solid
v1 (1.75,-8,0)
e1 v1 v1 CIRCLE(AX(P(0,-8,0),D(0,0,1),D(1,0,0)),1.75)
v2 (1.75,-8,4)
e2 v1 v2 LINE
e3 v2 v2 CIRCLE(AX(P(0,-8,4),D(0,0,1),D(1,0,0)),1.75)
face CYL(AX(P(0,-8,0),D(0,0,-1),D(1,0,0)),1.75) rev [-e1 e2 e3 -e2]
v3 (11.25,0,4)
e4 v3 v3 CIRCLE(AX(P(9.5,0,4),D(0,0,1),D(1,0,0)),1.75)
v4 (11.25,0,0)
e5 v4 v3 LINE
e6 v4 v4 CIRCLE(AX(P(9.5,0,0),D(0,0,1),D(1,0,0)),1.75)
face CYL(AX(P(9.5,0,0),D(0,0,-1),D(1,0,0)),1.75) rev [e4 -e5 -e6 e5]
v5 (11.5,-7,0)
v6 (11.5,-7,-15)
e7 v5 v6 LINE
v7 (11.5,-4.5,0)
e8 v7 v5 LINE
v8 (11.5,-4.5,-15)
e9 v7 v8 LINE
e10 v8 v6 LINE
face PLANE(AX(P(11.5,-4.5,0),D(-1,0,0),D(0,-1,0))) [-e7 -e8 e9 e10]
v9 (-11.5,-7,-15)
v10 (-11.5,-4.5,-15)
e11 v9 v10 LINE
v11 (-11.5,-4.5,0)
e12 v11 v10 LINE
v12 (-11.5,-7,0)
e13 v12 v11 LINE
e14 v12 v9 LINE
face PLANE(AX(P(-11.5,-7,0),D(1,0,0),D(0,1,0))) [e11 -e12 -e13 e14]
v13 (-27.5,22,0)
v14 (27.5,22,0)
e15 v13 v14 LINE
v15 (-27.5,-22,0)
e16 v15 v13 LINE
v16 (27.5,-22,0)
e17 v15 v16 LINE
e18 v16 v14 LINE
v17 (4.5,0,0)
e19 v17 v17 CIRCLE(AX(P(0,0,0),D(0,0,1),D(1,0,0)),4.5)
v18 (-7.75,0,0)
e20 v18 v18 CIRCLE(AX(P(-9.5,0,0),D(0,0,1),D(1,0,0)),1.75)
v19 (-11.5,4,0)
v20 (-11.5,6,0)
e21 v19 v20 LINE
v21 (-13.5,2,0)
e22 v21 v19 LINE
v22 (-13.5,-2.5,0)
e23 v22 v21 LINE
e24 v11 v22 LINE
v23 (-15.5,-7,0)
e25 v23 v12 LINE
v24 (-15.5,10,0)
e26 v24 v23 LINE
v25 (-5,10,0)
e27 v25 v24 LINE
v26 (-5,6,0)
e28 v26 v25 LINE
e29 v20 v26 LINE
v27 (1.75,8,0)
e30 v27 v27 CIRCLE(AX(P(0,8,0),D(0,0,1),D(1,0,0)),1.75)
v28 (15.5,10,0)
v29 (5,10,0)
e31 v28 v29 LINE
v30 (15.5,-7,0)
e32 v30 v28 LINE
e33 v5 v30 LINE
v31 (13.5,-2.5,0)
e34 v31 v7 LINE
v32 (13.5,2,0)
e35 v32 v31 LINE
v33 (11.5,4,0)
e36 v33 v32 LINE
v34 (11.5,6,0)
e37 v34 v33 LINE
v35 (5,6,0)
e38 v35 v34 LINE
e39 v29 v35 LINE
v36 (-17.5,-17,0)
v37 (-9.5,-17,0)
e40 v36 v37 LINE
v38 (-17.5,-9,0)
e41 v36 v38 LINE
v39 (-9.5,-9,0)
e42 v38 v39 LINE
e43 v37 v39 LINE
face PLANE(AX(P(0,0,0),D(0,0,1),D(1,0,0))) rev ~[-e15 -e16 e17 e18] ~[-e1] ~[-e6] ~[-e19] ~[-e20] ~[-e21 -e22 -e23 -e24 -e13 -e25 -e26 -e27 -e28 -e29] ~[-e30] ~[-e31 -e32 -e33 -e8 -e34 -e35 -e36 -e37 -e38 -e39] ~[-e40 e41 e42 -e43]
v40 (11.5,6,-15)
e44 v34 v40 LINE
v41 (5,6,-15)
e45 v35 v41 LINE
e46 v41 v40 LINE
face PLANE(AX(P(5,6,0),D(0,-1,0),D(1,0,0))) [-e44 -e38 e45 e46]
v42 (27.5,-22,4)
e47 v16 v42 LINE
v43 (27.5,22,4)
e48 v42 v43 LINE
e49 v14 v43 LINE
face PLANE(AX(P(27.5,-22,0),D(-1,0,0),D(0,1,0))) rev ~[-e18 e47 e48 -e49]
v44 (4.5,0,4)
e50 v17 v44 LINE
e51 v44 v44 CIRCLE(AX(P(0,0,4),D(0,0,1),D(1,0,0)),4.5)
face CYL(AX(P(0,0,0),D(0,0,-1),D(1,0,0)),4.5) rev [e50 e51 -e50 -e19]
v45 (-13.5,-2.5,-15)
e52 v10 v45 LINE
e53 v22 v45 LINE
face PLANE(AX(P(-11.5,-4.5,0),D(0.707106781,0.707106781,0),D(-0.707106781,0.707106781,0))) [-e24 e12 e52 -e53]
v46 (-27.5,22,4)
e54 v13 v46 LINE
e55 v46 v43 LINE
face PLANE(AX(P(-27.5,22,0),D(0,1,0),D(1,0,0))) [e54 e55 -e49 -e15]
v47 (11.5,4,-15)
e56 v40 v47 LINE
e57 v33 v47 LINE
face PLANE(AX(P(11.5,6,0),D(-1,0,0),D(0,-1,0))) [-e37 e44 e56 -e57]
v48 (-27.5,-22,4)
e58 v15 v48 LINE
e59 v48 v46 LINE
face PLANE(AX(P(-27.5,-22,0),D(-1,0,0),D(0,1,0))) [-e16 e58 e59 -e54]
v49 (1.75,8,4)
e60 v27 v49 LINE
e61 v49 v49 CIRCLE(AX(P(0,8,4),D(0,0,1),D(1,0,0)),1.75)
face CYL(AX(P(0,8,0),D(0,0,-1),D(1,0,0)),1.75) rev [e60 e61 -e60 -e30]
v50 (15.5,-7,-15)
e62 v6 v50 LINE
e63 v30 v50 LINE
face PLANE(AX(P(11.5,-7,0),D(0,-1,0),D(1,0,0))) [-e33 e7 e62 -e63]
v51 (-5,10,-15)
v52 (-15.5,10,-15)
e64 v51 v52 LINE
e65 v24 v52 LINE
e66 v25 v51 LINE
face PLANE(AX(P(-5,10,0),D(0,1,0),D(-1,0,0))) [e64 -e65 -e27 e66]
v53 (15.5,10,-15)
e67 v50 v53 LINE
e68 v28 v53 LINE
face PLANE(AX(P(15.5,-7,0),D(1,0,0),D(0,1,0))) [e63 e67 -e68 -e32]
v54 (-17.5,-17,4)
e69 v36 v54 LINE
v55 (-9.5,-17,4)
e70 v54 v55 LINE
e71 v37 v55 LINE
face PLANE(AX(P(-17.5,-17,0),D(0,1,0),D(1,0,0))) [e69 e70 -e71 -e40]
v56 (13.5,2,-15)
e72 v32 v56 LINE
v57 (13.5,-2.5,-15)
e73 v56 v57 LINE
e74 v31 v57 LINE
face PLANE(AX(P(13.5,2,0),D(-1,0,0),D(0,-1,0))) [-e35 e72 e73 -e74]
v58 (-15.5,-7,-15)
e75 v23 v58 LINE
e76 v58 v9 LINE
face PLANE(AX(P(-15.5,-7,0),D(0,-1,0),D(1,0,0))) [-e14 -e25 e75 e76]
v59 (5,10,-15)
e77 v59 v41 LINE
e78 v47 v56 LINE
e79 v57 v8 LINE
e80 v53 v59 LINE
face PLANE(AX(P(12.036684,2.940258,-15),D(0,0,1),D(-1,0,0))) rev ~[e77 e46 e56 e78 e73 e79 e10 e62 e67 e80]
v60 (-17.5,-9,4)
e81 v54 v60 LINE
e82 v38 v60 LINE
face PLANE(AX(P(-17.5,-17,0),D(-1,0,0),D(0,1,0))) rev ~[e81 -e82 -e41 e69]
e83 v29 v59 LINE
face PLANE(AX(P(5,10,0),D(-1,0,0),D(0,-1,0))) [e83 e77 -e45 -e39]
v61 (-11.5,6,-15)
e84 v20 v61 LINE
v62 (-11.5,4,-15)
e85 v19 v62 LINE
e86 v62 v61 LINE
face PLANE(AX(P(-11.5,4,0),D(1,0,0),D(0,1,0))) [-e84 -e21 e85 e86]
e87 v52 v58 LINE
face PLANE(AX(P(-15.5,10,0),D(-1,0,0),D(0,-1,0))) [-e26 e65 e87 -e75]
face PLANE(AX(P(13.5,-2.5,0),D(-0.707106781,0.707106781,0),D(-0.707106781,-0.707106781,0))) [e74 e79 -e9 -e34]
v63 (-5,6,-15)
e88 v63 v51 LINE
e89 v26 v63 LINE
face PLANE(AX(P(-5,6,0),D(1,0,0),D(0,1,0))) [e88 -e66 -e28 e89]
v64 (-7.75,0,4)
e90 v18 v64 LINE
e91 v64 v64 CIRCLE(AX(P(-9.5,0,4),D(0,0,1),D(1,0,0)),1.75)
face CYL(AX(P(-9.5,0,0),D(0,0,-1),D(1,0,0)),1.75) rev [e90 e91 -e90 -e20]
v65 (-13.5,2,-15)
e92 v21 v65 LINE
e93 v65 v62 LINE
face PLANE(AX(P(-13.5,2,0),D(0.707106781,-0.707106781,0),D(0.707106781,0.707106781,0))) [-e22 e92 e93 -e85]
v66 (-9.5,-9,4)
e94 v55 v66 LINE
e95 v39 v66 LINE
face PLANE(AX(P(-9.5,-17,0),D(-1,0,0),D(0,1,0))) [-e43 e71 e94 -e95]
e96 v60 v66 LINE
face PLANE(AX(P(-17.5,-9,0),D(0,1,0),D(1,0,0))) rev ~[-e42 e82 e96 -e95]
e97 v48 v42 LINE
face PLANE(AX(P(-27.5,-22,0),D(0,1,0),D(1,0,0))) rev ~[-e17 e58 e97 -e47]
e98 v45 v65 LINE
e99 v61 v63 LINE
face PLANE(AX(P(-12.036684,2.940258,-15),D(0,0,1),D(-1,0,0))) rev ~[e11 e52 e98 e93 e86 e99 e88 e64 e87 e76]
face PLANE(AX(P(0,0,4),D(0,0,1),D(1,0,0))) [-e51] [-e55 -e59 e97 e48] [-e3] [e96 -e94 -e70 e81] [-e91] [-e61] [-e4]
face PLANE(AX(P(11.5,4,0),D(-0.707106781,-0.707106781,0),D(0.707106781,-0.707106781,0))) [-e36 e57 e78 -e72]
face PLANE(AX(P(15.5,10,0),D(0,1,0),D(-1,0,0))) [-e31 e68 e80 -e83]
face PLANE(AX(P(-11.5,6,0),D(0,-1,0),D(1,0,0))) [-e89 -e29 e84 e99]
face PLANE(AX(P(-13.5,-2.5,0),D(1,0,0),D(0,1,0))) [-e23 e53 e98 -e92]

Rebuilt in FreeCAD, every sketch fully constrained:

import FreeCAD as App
import Part
import Sketcher
from FreeCAD import Vector
Q = App.Units.Quantity


def add_polygon(sketch, points):
    """Adds a closed chain of lines whose ends are joined by coincident constraints."""
    first, n = sketch.GeometryCount, len(points)
    for a, b in zip(points, points[1:] + points[:1]):
        sketch.addGeometry(Part.LineSegment(App.Vector(*a, 0), App.Vector(*b, 0)), False)
    for i in range(n):
        sketch.addConstraint(Sketcher.Constraint("Coincident", first + i, 2, first + (i + 1) % n, 1))

doc = App.newDocument("Part")
params = doc.addObject("Spreadsheet::Sheet", "Params")
for row, (alias, value) in enumerate([
    ("sketch1_diameter", "9 mm"),
    ("sketch1_diameter2", "3.5 mm"),
    ("sketch1_width", "55 mm"),
    ("sketch1_width2", "8 mm"),
    ("sketch1_height", "44 mm"),
    ("pad1_length", "4 mm"),
    ("sketch2_width", "4 mm"),
    ("sketch2_height", "17 mm"),
    ("sketch2_height2", "2 mm"),
    ("sketch2_width2", "10.5 mm"),
    ("sketch2_height3", "4.5 mm"),
    ("pad2_length", "15 mm"),
], start=1):
    params.set(f"A{row}", alias)
    params.set(f"B{row}", "=" + value)
    params.setAlias(f"B{row}", alias)

body = doc.addObject("PartDesign::Body", "Body")

sketch1 = doc.addObject("Sketcher::SketchObject", "Sketch")
body.addObject(sketch1)
sketch1.AttachmentSupport = (doc.XY_Plane, [""])
sketch1.MapMode = "FlatFace"
add_polygon(sketch1, [(-27.5, 22), (-27.5, -22), (27.5, -22), (27.5, 22)])
add_polygon(sketch1, [(-9.5, -17), (-17.5, -17), (-17.5, -9), (-9.5, -9)])
sketch1.addGeometry(Part.Circle(Vector(0, -8, 0), Vector(0, 0, 1), 1.8), False)
sketch1.addGeometry(Part.Circle(Vector(-9.5, 0, 0), Vector(0, 0, 1), 1.8), False)
sketch1.addGeometry(Part.Circle(Vector(0, 0, 0), Vector(0, 0, 1), 4.5), False)
sketch1.addGeometry(Part.Circle(Vector(9.5, 0, 0), Vector(0, 0, 1), 1.8), False)
sketch1.addGeometry(Part.Circle(Vector(0, 8, 0), Vector(0, 0, 1), 1.8), False)
sketch1.addConstraint([
    Sketcher.Constraint("Vertical", 0),
    Sketcher.Constraint("Horizontal", 1),
    Sketcher.Constraint("Vertical", 2),
    Sketcher.Constraint("Horizontal", 3),
    Sketcher.Constraint("Horizontal", 4),
    Sketcher.Constraint("Vertical", 5),
    Sketcher.Constraint("Horizontal", 6),
    Sketcher.Constraint("Vertical", 7),
    Sketcher.Constraint("Coincident", 10, 3, -1, 1),
    Sketcher.Constraint("Equal", 8, 9),
    Sketcher.Constraint("Equal", 9, 11),
    Sketcher.Constraint("Equal", 11, 12),
    Sketcher.Constraint("Symmetric", 9, 3, 11, 3, -1, 1),
    Sketcher.Constraint("Symmetric", 8, 3, 12, 3, -1, 1),
    Sketcher.Constraint("Symmetric", 0, 2, 2, 2, -1, 1),
    Sketcher.Constraint("PointOnObject", 8, 3, -2),
    Sketcher.Constraint("PointOnObject", 9, 3, -1),
    Sketcher.Constraint("Vertical", 9, 3, 6, 2),
    Sketcher.Constraint("Equal", 6, 5),
    Sketcher.Constraint("Diameter", 10, Q("9 mm")),
    Sketcher.Constraint("Diameter", 8, Q("3.5 mm")),
    Sketcher.Constraint("DistanceX", 1, 1, 1, 2, Q("55 mm")),
    Sketcher.Constraint("DistanceX", 4, 2, 4, 1, Q("8 mm")),
    Sketcher.Constraint("DistanceY", 0, 2, 0, 1, Q("44 mm")),
    Sketcher.Constraint("DistanceY", 8, 3, -1, 1, Q("8 mm")),
    Sketcher.Constraint("DistanceY", 4, 2, -1, 1, Q("17 mm")),
    Sketcher.Constraint("DistanceX", 9, 3, 11, 3, Q("19 mm")),
])
sketch1.setExpression("Constraints[27]", "Params.sketch1_diameter")
sketch1.setExpression("Constraints[28]", "Params.sketch1_diameter2")
sketch1.setExpression("Constraints[29]", "Params.sketch1_width")
sketch1.setExpression("Constraints[30]", "Params.sketch1_width2")
sketch1.setExpression("Constraints[31]", "Params.sketch1_height")
pad1 = doc.addObject("PartDesign::Pad", "Pad")
body.addObject(pad1)
pad1.Profile = sketch1
pad1.setExpression("Length", "Params.pad1_length")

sketch2 = doc.addObject("Sketcher::SketchObject", "Sketch001")
body.addObject(sketch2)
sketch2.AttachmentSupport = (doc.XY_Plane, [""])
sketch2.MapMode = "FlatFace"
add_polygon(sketch2, [(-11.5, -7), (-15.5, -7), (-15.5, 10), (-5, 10), (-5, 6), (-11.5, 6), (-11.5, 4), (-13.5, 2), (-13.5, -2.5), (-11.5, -4.5)])
add_polygon(sketch2, [(15.5, -7), (11.5, -7), (11.5, -4.5), (13.5, -2.5), (13.5, 2), (11.5, 4), (11.5, 6), (5, 6), (5, 10), (15.5, 10)])
sketch2.addConstraint([
    Sketcher.Constraint("Horizontal", 0),
    Sketcher.Constraint("Vertical", 1),
    Sketcher.Constraint("Horizontal", 2),
    Sketcher.Constraint("Vertical", 3),
    Sketcher.Constraint("Horizontal", 4),
    Sketcher.Constraint("Vertical", 5),
    Sketcher.Constraint("Vertical", 7),
    Sketcher.Constraint("Vertical", 9),
    Sketcher.Constraint("Horizontal", 10),
    Sketcher.Constraint("Vertical", 11),
    Sketcher.Constraint("Vertical", 13),
    Sketcher.Constraint("Vertical", 15),
    Sketcher.Constraint("Horizontal", 16),
    Sketcher.Constraint("Vertical", 17),
    Sketcher.Constraint("Horizontal", 18),
    Sketcher.Constraint("Vertical", 19),
    Sketcher.Constraint("Symmetric", 9, 2, 10, 2, -2),
    Sketcher.Constraint("Symmetric", 7, 2, 12, 2, -2),
    Sketcher.Constraint("Symmetric", 5, 2, 14, 2, -2),
    Sketcher.Constraint("Symmetric", 3, 2, 16, 2, -2),
    Sketcher.Constraint("Symmetric", 1, 2, 18, 2, -2),
    Sketcher.Constraint("Perpendicular", 6, 8),
    Sketcher.Constraint("Perpendicular", 8, 12),
    Sketcher.Constraint("Perpendicular", 12, 14),
    Sketcher.Constraint("Horizontal", 8, 2, 11, 2),
    Sketcher.Constraint("Vertical", 5, 2, 8, 2),
    Sketcher.Constraint("Equal", 10, 3),
    Sketcher.Constraint("DistanceX", 0, 2, 0, 1, Q("4 mm")),
    Sketcher.Constraint("DistanceY", 1, 1, 1, 2, Q("17 mm")),
    Sketcher.Constraint("DistanceY", 5, 2, 5, 1, Q("2 mm")),
    Sketcher.Constraint("DistanceX", 2, 1, 2, 2, Q("10.5 mm")),
    Sketcher.Constraint("DistanceY", 7, 2, 7, 1, Q("4.5 mm")),
    Sketcher.Constraint("DistanceY", 9, 2, 9, 1, Q("2.5 mm")),
    Sketcher.Constraint("DistanceY", 0, 2, -1, 1, Q("7 mm")),
    Sketcher.Constraint("DistanceX", 2, 2, -1, 1, Q("5 mm")),
])
sketch2.setExpression("Constraints[47]", "Params.sketch2_width")
sketch2.setExpression("Constraints[48]", "Params.sketch2_height")
sketch2.setExpression("Constraints[49]", "Params.sketch2_height2")
sketch2.setExpression("Constraints[50]", "Params.sketch2_width2")
sketch2.setExpression("Constraints[51]", "Params.sketch2_height3")
pad2 = doc.addObject("PartDesign::Pad", "Pad001")
body.addObject(pad2)
pad2.Profile = sketch2
pad2.setExpression("Length", "Params.pad2_length")
pad2.Reversed = True

doc.recompute()
